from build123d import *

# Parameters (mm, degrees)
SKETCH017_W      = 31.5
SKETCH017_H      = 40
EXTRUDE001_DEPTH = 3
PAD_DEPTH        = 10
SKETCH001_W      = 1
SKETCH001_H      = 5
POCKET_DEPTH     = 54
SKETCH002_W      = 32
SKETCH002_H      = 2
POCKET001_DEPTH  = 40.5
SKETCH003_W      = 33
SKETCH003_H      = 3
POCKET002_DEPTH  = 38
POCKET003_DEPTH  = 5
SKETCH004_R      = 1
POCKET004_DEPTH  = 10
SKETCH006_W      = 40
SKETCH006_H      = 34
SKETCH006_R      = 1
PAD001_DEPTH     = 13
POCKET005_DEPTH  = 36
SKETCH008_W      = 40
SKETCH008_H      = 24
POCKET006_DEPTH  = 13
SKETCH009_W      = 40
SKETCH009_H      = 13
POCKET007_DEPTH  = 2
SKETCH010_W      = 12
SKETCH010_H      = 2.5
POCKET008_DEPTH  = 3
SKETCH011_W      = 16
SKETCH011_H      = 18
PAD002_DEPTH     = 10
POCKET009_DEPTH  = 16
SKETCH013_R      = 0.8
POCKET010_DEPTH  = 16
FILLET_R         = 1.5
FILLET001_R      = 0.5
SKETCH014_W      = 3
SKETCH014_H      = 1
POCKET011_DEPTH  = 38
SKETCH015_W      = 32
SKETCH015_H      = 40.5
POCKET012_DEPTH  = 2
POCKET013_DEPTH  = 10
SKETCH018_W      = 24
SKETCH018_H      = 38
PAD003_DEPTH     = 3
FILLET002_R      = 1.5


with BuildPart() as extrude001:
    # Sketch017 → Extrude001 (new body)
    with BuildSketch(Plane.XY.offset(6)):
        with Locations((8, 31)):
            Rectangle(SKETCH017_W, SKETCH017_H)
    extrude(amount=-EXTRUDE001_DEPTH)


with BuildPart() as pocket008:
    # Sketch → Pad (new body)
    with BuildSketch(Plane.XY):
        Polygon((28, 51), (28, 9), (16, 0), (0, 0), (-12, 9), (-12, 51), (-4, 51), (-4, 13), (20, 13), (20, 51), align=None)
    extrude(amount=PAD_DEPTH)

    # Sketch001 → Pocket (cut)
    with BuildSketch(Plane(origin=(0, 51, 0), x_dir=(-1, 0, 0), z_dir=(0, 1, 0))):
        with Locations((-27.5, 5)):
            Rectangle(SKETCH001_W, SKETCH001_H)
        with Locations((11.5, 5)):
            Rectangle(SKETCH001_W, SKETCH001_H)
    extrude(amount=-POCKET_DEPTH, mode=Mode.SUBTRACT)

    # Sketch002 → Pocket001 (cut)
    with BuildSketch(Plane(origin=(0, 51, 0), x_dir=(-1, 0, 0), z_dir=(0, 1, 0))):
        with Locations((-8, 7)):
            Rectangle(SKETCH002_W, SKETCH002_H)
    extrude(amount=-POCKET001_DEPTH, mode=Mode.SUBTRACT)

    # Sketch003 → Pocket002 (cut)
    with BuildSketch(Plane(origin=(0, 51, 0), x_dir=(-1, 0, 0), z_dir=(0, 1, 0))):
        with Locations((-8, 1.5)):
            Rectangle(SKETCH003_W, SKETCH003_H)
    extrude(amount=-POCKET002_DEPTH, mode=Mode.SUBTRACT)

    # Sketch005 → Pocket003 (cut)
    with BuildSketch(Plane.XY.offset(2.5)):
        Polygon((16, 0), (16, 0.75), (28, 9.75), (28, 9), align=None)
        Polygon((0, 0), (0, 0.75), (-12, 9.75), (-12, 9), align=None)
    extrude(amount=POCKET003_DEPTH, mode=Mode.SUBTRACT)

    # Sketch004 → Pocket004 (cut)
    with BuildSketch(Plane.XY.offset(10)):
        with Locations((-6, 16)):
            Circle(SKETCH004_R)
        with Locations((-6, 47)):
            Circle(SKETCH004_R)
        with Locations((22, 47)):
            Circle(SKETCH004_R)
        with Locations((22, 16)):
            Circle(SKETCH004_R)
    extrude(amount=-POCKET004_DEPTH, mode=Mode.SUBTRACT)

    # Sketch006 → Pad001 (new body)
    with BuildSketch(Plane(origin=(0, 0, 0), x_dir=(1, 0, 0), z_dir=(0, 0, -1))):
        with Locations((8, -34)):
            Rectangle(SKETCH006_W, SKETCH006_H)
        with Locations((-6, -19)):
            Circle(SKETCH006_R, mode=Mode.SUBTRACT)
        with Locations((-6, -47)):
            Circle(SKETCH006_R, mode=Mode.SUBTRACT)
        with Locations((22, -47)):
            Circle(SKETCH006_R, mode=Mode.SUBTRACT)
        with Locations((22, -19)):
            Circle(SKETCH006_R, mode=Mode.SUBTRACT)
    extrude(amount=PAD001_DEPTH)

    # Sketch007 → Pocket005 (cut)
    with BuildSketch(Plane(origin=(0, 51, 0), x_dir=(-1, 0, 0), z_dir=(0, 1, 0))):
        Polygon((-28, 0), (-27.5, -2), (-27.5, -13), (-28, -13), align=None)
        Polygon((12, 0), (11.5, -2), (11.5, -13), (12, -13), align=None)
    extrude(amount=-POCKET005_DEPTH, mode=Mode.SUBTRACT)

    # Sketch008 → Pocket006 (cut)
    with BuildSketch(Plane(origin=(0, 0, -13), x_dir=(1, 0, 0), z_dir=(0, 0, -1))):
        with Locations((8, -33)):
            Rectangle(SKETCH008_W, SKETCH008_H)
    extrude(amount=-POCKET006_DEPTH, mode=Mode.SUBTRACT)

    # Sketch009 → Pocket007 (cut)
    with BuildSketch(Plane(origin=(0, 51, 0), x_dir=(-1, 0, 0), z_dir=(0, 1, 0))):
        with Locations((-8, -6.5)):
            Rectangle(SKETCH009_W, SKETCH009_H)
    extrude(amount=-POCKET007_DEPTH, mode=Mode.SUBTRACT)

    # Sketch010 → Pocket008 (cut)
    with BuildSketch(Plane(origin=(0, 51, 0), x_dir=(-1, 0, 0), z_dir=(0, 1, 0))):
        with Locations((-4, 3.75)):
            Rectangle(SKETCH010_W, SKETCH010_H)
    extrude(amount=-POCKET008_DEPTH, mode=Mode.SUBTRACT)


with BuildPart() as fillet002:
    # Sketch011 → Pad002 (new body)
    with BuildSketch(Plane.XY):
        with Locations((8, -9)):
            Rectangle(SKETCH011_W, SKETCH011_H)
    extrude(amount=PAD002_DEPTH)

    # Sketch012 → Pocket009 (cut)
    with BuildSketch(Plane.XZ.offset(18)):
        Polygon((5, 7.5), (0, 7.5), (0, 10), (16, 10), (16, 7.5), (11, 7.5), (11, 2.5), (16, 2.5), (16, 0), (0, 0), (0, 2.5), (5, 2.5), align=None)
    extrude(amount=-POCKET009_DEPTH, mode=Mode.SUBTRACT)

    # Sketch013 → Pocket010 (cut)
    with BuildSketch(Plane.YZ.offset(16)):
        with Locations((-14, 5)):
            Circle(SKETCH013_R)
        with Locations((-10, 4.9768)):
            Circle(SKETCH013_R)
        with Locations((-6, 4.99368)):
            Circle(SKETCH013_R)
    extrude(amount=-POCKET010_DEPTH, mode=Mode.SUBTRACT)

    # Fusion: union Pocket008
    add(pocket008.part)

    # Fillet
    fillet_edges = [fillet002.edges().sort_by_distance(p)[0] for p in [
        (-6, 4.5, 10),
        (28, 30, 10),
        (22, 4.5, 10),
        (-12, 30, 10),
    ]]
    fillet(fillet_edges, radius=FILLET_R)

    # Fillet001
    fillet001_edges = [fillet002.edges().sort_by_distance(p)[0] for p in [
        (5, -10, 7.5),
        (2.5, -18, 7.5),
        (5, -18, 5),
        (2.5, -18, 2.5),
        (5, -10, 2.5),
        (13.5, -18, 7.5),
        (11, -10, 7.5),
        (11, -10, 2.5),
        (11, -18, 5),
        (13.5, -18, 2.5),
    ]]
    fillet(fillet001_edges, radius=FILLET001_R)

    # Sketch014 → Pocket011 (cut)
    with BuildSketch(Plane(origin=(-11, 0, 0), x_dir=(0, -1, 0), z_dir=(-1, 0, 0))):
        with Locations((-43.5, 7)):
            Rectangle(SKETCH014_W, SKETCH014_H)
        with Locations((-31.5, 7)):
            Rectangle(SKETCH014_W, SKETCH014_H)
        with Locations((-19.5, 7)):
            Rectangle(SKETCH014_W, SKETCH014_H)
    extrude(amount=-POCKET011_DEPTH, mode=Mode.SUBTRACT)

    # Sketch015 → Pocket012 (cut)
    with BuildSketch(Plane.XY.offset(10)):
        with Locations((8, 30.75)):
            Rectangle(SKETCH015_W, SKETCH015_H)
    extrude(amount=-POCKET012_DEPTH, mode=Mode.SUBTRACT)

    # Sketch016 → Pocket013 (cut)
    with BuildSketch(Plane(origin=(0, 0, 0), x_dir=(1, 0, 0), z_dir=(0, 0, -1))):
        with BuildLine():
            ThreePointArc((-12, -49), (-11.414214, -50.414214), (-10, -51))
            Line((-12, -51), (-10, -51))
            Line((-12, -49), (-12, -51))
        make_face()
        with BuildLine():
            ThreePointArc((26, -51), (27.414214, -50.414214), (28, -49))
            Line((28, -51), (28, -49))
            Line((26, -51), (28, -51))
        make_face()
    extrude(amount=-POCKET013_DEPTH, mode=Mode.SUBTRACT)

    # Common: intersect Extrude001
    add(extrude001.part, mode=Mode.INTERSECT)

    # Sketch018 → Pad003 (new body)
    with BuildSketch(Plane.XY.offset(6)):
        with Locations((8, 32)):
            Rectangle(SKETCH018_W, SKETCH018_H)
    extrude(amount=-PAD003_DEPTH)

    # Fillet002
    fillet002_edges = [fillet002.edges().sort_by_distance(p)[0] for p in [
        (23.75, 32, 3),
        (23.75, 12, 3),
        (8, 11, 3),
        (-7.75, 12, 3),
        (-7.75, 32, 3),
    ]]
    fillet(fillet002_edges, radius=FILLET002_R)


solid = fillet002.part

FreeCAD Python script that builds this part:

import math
import FreeCAD as App
import Part
import Sketcher
from FreeCAD import Vector


def edges_at(feature, points):
    """Names of the edges that pass closest to the given points."""
    edges = feature.Shape.Edges
    near = lambda p: min(range(len(edges)), key=lambda i: edges[i].distToShape(Part.Vertex(*p))[0])
    return sorted({f"Edge{near(p) + 1}" for p in points})


def add_polygon(sketch, points):
    """Adds a closed chain of lines whose ends are joined by coincident constraints."""
    first, n = sketch.GeometryCount, len(points)
    for a, b in zip(points, points[1:] + points[:1]):
        sketch.addGeometry(Part.LineSegment(App.Vector(*a, 0), App.Vector(*b, 0)), False)
    for i in range(n):
        sketch.addConstraint(Sketcher.Constraint("Coincident", first + i, 2, first + (i + 1) % n, 1))

doc = App.newDocument("Part")
body = doc.addObject("PartDesign::Body", "Body")

# Sketch on XY plane
sketch1 = body.newObject("Sketcher::SketchObject", "Sketch")
sketch1.AttachmentSupport = (doc.getObject("XY_Plane"), [""])
sketch1.MapMode = "FlatFace"
sketch1.AttachmentOffset = App.Placement(Vector(0, 0, 6), App.Rotation())
add_polygon(sketch1, [(-7.75, 51), (-7.75, 11), (23.75, 11), (23.75, 51)])  # lines 0-3
sketch1.addConstraint([
    Sketcher.Constraint("Vertical", 0),
    Sketcher.Constraint("Horizontal", 1),
    Sketcher.Constraint("Vertical", 2),
    Sketcher.Constraint("Horizontal", 3),
    Sketcher.Constraint("DistanceY", 0, 2, 0, 1, 40.0),
    Sketcher.Constraint("DistanceX", 1, 1, 1, 2, 31.5),
    Sketcher.Constraint("DistanceY", -1, 1, 0, 2, 11.0),
    Sketcher.Constraint("DistanceX", 0, 2, -1, 1, 7.75),
])
pad1 = body.newObject("PartDesign::Pad", "Pad")
pad1.Profile = sketch1
pad1.Length = 3
pad1.Reversed = True
body2 = doc.addObject("PartDesign::Body", "Body001")

# Sketch on XY plane
sketch2 = body2.newObject("Sketcher::SketchObject", "Sketch001")
sketch2.AttachmentSupport = (doc.getObject("XY_Plane001"), [""])
sketch2.MapMode = "FlatFace"
add_polygon(sketch2, [(28, 9), (28, 51), (20, 51), (20, 13), (-4, 13), (-4, 51), (-12, 51), (-12, 9), (0, 0), (16, 0)])  # lines 0-9
sketch2.addConstraint([
    Sketcher.Constraint("Vertical", 0),
    Sketcher.Constraint("Horizontal", 1),
    Sketcher.Constraint("Vertical", 2),
    Sketcher.Constraint("Horizontal", 3),
    Sketcher.Constraint("Vertical", 4),
    Sketcher.Constraint("Horizontal", 5),
    Sketcher.Constraint("Vertical", 6),
    Sketcher.Constraint("Horizontal", 8),
    Sketcher.Constraint("Coincident", 7, 2, -1, 1),
    Sketcher.Constraint("Horizontal", 1, 2, 4, 2),
    Sketcher.Constraint("Horizontal", 6, 2, 9, 2),
    Sketcher.Constraint("Equal", 1, 5),
    Sketcher.Constraint("Equal", 7, 9),
    Sketcher.Constraint("DistanceX", 1, 2, 1, 1, 8.0),
    Sketcher.Constraint("DistanceX", 3, 2, 3, 1, 24.0),
    Sketcher.Constraint("DistanceX", 8, 1, 8, 2, 16.0),
    Sketcher.Constraint("DistanceY", 0, 1, 0, 2, 42.0),
    Sketcher.Constraint("DistanceY", 2, 2, 2, 1, 38.0),
    Sketcher.Constraint("Distance", 7, 15.0),
])
pad2 = body2.newObject("PartDesign::Pad", "Pad001")
pad2.Profile = sketch2
pad2.Length = 10

# Sketch on XZ plane
sketch3 = body2.newObject("Sketcher::SketchObject", "Sketch002")
sketch3.AttachmentSupport = (doc.getObject("XZ_Plane001"), [""])
sketch3.MapMode = "FlatFace"
sketch3.AttachmentOffset = App.Placement(Vector(0, 0, -51), App.Rotation())
add_polygon(sketch3, [(28, 7.5), (28, 2.5), (27, 2.5), (27, 7.5)])  # lines 0-3
add_polygon(sketch3, [(-11, 7.5), (-11, 2.5), (-12, 2.5), (-12, 7.5)])  # lines 4-7
sketch3.addConstraint([
    Sketcher.Constraint("Vertical", 0),
    Sketcher.Constraint("Horizontal", 1),
    Sketcher.Constraint("Vertical", 2),
    Sketcher.Constraint("Horizontal", 3),
    Sketcher.Constraint("Vertical", 4),
    Sketcher.Constraint("Horizontal", 5),
    Sketcher.Constraint("Vertical", 6),
    Sketcher.Constraint("Horizontal", 7),
    Sketcher.Constraint("Horizontal", 1, 2, 4, 2),
    Sketcher.Constraint("Horizontal", 3, 2, 6, 2),
    Sketcher.Constraint("Equal", 3, 5),
    Sketcher.Constraint("DistanceX", 1, 2, 1, 1, 1.0),
    Sketcher.Constraint("DistanceY", 0, 2, 0, 1, 5.0),
    Sketcher.Constraint("DistanceX", -1, 1, 0, 2, 28.0),
    Sketcher.Constraint("DistanceX", 4, 2, -1, 1, 11.0),
    Sketcher.Constraint("DistanceY", -1, 1, 0, 2, 2.5),
])
pocket1 = body2.newObject("PartDesign::Pocket", "Pocket")
pocket1.Profile = sketch3
pocket1.Length = 54
pocket1.Reversed = True

# Sketch on XZ plane
sketch4 = body2.newObject("Sketcher::SketchObject", "Sketch003")
sketch4.AttachmentSupport = (doc.getObject("XZ_Plane001"), [""])
sketch4.MapMode = "FlatFace"
sketch4.AttachmentOffset = App.Placement(Vector(0, 0, -51), App.Rotation())
add_polygon(sketch4, [(24, 8), (24, 6), (-8, 6), (-8, 8)])  # lines 0-3
sketch4.addConstraint([
    Sketcher.Constraint("Vertical", 0),
    Sketcher.Constraint("Horizontal", 1),
    Sketcher.Constraint("Vertical", 2),
    Sketcher.Constraint("Horizontal", 3),
    Sketcher.Constraint("DistanceX", 1, 2, 1, 1, 32.0),
    Sketcher.Constraint("DistanceY", 0, 2, 0, 1, 2.0),
    Sketcher.Constraint("DistanceX", -1, 1, 0, 2, 24.0),
    Sketcher.Constraint("DistanceY", -1, 1, 0, 2, 6.0),
])
pocket2 = body2.newObject("PartDesign::Pocket", "Pocket001")
pocket2.Profile = sketch4
pocket2.Length = 40.5
pocket2.Reversed = True

# Sketch on XZ plane
sketch5 = body2.newObject("Sketcher::SketchObject", "Sketch004")
sketch5.AttachmentSupport = (doc.getObject("XZ_Plane001"), [""])
sketch5.MapMode = "FlatFace"
sketch5.AttachmentOffset = App.Placement(Vector(0, 0, -51), App.Rotation())
add_polygon(sketch5, [(24.5, 3), (24.5, 0), (-8.5, 0), (-8.5, 3)])  # lines 0-3
sketch5.addConstraint([
    Sketcher.Constraint("Vertical", 0),
    Sketcher.Constraint("Horizontal", 1),
    Sketcher.Constraint("Vertical", 2),
    Sketcher.Constraint("Horizontal", 3),
    Sketcher.Constraint("PointOnObject", 0, 2, -1),
    Sketcher.Constraint("DistanceX", 1, 2, 1, 1, 33.0),
    Sketcher.Constraint("DistanceY", 0, 2, 0, 1, 3.0),
    Sketcher.Constraint("DistanceX", -1, 1, 0, 2, 24.5),
])
pocket3 = body2.newObject("PartDesign::Pocket", "Pocket002")
pocket3.Profile = sketch5
pocket3.Length = 38
pocket3.Reversed = True

# Sketch on XY plane
sketch6 = body2.newObject("Sketcher::SketchObject", "Sketch005")
sketch6.AttachmentSupport = (doc.getObject("XY_Plane001"), [""])
sketch6.MapMode = "FlatFace"
sketch6.AttachmentOffset = App.Placement(Vector(0, 0, 2.5), App.Rotation())
add_polygon(sketch6, [(16, 0.75), (16, 0), (28, 9), (28, 9.75)])  # lines 0-3
add_polygon(sketch6, [(0, 0), (0, 0.75), (-12, 9.75), (-12, 9)])  # lines 4-7
sketch6.addConstraint([
    Sketcher.Constraint("Vertical", 0),
    Sketcher.Constraint("Vertical", 2),
    Sketcher.Constraint("Vertical", 4),
    Sketcher.Constraint("Vertical", 6),
    Sketcher.Constraint("Coincident", 7, 2, -1, 1),
    Sketcher.Constraint("PointOnObject", 0, 2, -1),
    Sketcher.Constraint("Parallel", 1, 3),
    Sketcher.Constraint("Parallel", 5, 7),
    Sketcher.Constraint("Horizontal", 3, 2, 4, 2),
    Sketcher.Constraint("Horizontal", 2, 2, 5, 2),
    Sketcher.Constraint("Equal", 3, 5),
    Sketcher.Constraint("Distance", 1, 15.0),
    Sketcher.Constraint("DistanceX", -1, 1, 0, 2, 16.0),
    Sketcher.Constraint("DistanceX", -1, 1, 1, 2, 28.0),
    Sketcher.Constraint("DistanceY", 0, 2, 0, 1, 0.75),
])
pocket4 = body2.newObject("PartDesign::Pocket", "Pocket003")
pocket4.Profile = sketch6
pocket4.Length = 5
pocket4.Reversed = True

# Sketch on XY plane
sketch7 = body2.newObject("Sketcher::SketchObject", "Sketch006")
sketch7.AttachmentSupport = (doc.getObject("XY_Plane001"), [""])
sketch7.MapMode = "FlatFace"
sketch7.AttachmentOffset = App.Placement(Vector(0, 0, 10), App.Rotation())
sketch7.addGeometry([
    Part.Circle(Vector(-6, 16, 0), Vector(0, 0, 1), 1),
    Part.Circle(Vector(-6, 47, 0), Vector(0, 0, 1), 1),
    Part.Circle(Vector(22, 47, 0), Vector(0, 0, 1), 1),
    Part.Circle(Vector(22, 16, 0), Vector(0, 0, 1), 1),
], False)
sketch7.addConstraint([
    Sketcher.Constraint("Equal", 0, 1),
    Sketcher.Constraint("Equal", 1, 2),
    Sketcher.Constraint("Equal", 2, 3),
    Sketcher.Constraint("Horizontal", 1, 3, 2, 3),
    Sketcher.Constraint("Horizontal", 0, 3, 3, 3),
    Sketcher.Constraint("Vertical", 0, 3, 1, 3),
    Sketcher.Constraint("Vertical", 2, 3, 3, 3),
    Sketcher.Constraint("Diameter", 0, 2.0),
    Sketcher.Constraint("DistanceX", 0, 3, -1, 1, 6.0),
    Sketcher.Constraint("DistanceY", -1, 1, 0, 3, 16.0),
    Sketcher.Constraint("DistanceY", -1, 1, 1, 3, 47.0),
    Sketcher.Constraint("DistanceX", -1, 1, 2, 3, 22.0),
])
pocket5 = body2.newObject("PartDesign::Pocket", "Pocket004")
pocket5.Profile = sketch7
pocket5.Length = 10

# Sketch on XY plane
sketch8 = body2.newObject("Sketcher::SketchObject", "Sketch007")
sketch8.AttachmentSupport = (doc.getObject("XY_Plane001"), [""])
sketch8.MapMode = "FlatFace"
add_polygon(sketch8, [(-12, 17), (-12, 51), (28, 51), (28, 17)])  # lines 0-3
sketch8.addGeometry(Part.Circle(Vector(-6, 47, 0), Vector(0, 0, 1), 1), False)  # 4
sketch8.addGeometry(Part.Circle(Vector(22, 47, 0), Vector(0, 0, 1), 1), False)  # 5
sketch8.addGeometry(Part.Circle(Vector(-6, 19, 0), Vector(0, 0, 1), 1), False)  # 6
sketch8.addGeometry(Part.Circle(Vector(22, 19, 0), Vector(0, 0, 1), 1), False)  # 7
sketch8.addConstraint([
    Sketcher.Constraint("Vertical", 0),
    Sketcher.Constraint("Horizontal", 1),
    Sketcher.Constraint("Vertical", 2),
    Sketcher.Constraint("Horizontal", 3),
    Sketcher.Constraint("Equal", 4, 5),
    Sketcher.Constraint("Equal", 5, 6),
    Sketcher.Constraint("Equal", 6, 7),
    Sketcher.Constraint("Horizontal", 4, 3, 5, 3),
    Sketcher.Constraint("Horizontal", 6, 3, 7, 3),
    Sketcher.Constraint("Vertical", 4, 3, 6, 3),
    Sketcher.Constraint("Vertical", 5, 3, 7, 3),
    Sketcher.Constraint("Diameter", 4, 2.0),
    Sketcher.Constraint("DistanceX", 1, 1, 1, 2, 40.0),
    Sketcher.Constraint("DistanceY", 0, 1, 0, 2, 34.0),
    Sketcher.Constraint("DistanceX", 4, 3, -1, 1, 6.0),
    Sketcher.Constraint("DistanceY", -1, 1, 4, 3, 47.0),
    Sketcher.Constraint("DistanceX", -1, 1, 5, 3, 22.0),
    Sketcher.Constraint("DistanceY", -1, 1, 6, 3, 19.0),
    Sketcher.Constraint("DistanceX", 0, 2, -1, 1, 12.0),
    Sketcher.Constraint("DistanceY", -1, 1, 0, 2, 51.0),
])
pad3 = body2.newObject("PartDesign::Pad", "Pad002")
pad3.Profile = sketch8
pad3.Length = 13
pad3.Reversed = True

# Sketch on XZ plane
sketch9 = body2.newObject("Sketcher::SketchObject", "Sketch008")
sketch9.AttachmentSupport = (doc.getObject("XZ_Plane001"), [""])
sketch9.MapMode = "FlatFace"
sketch9.AttachmentOffset = App.Placement(Vector(0, 0, -51), App.Rotation())
add_polygon(sketch9, [(27.5, -2), (28, 0), (28, -13), (27.5, -13)])  # lines 0-3
add_polygon(sketch9, [(-12, 0), (-11.5, -2), (-11.5, -13), (-12, -13)])  # lines 4-7
sketch9.addConstraint([
    Sketcher.Constraint("Vertical", 1),
    Sketcher.Constraint("Horizontal", 2),
    Sketcher.Constraint("Vertical", 3),
    Sketcher.Constraint("Vertical", 5),
    Sketcher.Constraint("Horizontal", 6),
    Sketcher.Constraint("Vertical", 7),
    Sketcher.Constraint("PointOnObject", 0, 2, -1),
    Sketcher.Constraint("PointOnObject", 7, 2, -1),
    Sketcher.Constraint("Horizontal", 3, 2, 4, 2),
    Sketcher.Constraint("Horizontal", 2, 2, 5, 2),
    Sketcher.Constraint("Equal", 2, 6),
    Sketcher.Constraint("DistanceY", 1, 2, 1, 1, 13.0),
    Sketcher.Constraint("DistanceY", 3, 1, 3, 2, 11.0),
    Sketcher.Constraint("DistanceX", 2, 2, 2, 1, 0.5),
    Sketcher.Constraint("DistanceX", -1, 1, 0, 2, 28.0),
    Sketcher.Constraint("DistanceX", 6, 2, -1, 1, 12.0),
])
pocket6 = body2.newObject("PartDesign::Pocket", "Pocket005")
pocket6.Profile = sketch9
pocket6.Length = 36
pocket6.Reversed = True

# Sketch on XY plane
sketch10 = body2.newObject("Sketcher::SketchObject", "Sketch009")
sketch10.AttachmentSupport = (doc.getObject("XY_Plane001"), [""])
sketch10.MapMode = "FlatFace"
sketch10.AttachmentOffset = App.Placement(Vector(0, 0, -13), App.Rotation())
add_polygon(sketch10, [(-12, 21), (-12, 45), (28, 45), (28, 21)])  # lines 0-3
sketch10.addConstraint([
    Sketcher.Constraint("Vertical", 0),
    Sketcher.Constraint("Horizontal", 1),
    Sketcher.Constraint("Vertical", 2),
    Sketcher.Constraint("Horizontal", 3),
    Sketcher.Constraint("DistanceX", 1, 1, 1, 2, 40.0),
    Sketcher.Constraint("DistanceY", 0, 1, 0, 2, 24.0),
    Sketcher.Constraint("DistanceX", 0, 2, -1, 1, 12.0),
    Sketcher.Constraint("DistanceY", -1, 1, 0, 2, 45.0),
])
pocket7 = body2.newObject("PartDesign::Pocket", "Pocket006")
pocket7.Profile = sketch10
pocket7.Length = 13
pocket7.Reversed = True

# Sketch on XZ plane
sketch11 = body2.newObject("Sketcher::SketchObject", "Sketch010")
sketch11.AttachmentSupport = (doc.getObject("XZ_Plane001"), [""])
sketch11.MapMode = "FlatFace"
sketch11.AttachmentOffset = App.Placement(Vector(0, 0, -51), App.Rotation())
add_polygon(sketch11, [(28, 0), (28, -13), (-12, -13), (-12, 0)])  # lines 0-3
sketch11.addConstraint([
    Sketcher.Constraint("Vertical", 0),
    Sketcher.Constraint("Horizontal", 1),
    Sketcher.Constraint("Vertical", 2),
    Sketcher.Constraint("Horizontal", 3),
    Sketcher.Constraint("PointOnObject", 2, 2, -1),
    Sketcher.Constraint("DistanceX", 1, 2, 1, 1, 40.0),
    Sketcher.Constraint("DistanceY", 0, 2, 0, 1, 13.0),
    Sketcher.Constraint("DistanceX", -1, 1, 0, 2, 28.0),
])
pocket8 = body2.newObject("PartDesign::Pocket", "Pocket007")
pocket8.Profile = sketch11
pocket8.Length = 2
pocket8.Reversed = True

# Sketch on XZ plane
sketch12 = body2.newObject("Sketcher::SketchObject", "Sketch011")
sketch12.AttachmentSupport = (doc.getObject("XZ_Plane001"), [""])
sketch12.MapMode = "FlatFace"
sketch12.AttachmentOffset = App.Placement(Vector(0, 0, -51), App.Rotation())
add_polygon(sketch12, [(10, 5), (10, 2.5), (-2, 2.5), (-2, 5)])  # lines 0-3
sketch12.addConstraint([
    Sketcher.Constraint("Vertical", 0),
    Sketcher.Constraint("Horizontal", 1),
    Sketcher.Constraint("Vertical", 2),
    Sketcher.Constraint("Horizontal", 3),
    Sketcher.Constraint("DistanceX", 1, 2, 1, 1, 12.0),
    Sketcher.Constraint("DistanceY", 0, 2, 0, 1, 2.5),
    Sketcher.Constraint("DistanceX", -1, 1, 0, 2, 10.0),
    Sketcher.Constraint("DistanceY", -1, 1, 2, 2, 5.0),
])
pocket9 = body2.newObject("PartDesign::Pocket", "Pocket008")
pocket9.Profile = sketch12
pocket9.Length = 3
pocket9.Reversed = True
body3 = doc.addObject("PartDesign::Body", "Body002")

# Sketch on XY plane
sketch13 = body3.newObject("Sketcher::SketchObject", "Sketch012")
sketch13.AttachmentSupport = (doc.getObject("XY_Plane002"), [""])
sketch13.MapMode = "FlatFace"
add_polygon(sketch13, [(0, 0), (0, -18), (16, -18), (16, 0)])  # lines 0-3
sketch13.addConstraint([
    Sketcher.Constraint("Vertical", 0),
    Sketcher.Constraint("Horizontal", 1),
    Sketcher.Constraint("Vertical", 2),
    Sketcher.Constraint("Horizontal", 3),
    Sketcher.Constraint("Coincident", 3, 2, -1, 1),
    Sketcher.Constraint("DistanceX", 1, 1, 1, 2, 16.0),
    Sketcher.Constraint("DistanceY", 0, 2, 0, 1, 18.0),
])
pad4 = body3.newObject("PartDesign::Pad", "Pad003")
pad4.Profile = sketch13
pad4.Length = 10

# Sketch on XZ plane
sketch14 = body3.newObject("Sketcher::SketchObject", "Sketch013")
sketch14.AttachmentSupport = (doc.getObject("XZ_Plane002"), [""])
sketch14.MapMode = "FlatFace"
sketch14.AttachmentOffset = App.Placement(Vector(0, 0, 18), App.Rotation())
add_polygon(sketch14, [(0, 7.5), (5, 7.5), (5, 2.5), (0, 2.5), (0, 0), (16, 0), (16, 2.5), (11, 2.5), (11, 7.5), (16, 7.5), (16, 10), (0, 10)])  # lines 0-11
sketch14.addConstraint([
    Sketcher.Constraint("Horizontal", 0),
    Sketcher.Constraint("Vertical", 1),
    Sketcher.Constraint("Horizontal", 2),
    Sketcher.Constraint("Vertical", 3),
    Sketcher.Constraint("Horizontal", 4),
    Sketcher.Constraint("Vertical", 5),
    Sketcher.Constraint("Horizontal", 6),
    Sketcher.Constraint("Vertical", 7),
    Sketcher.Constraint("Horizontal", 8),
    Sketcher.Constraint("Vertical", 9),
    Sketcher.Constraint("Horizontal", 10),
    Sketcher.Constraint("Vertical", 11),
    Sketcher.Constraint("Coincident", 3, 2, -1, 1),
    Sketcher.Constraint("PointOnObject", 10, 2, -2),
    Sketcher.Constraint("Horizontal", 2, 2, 5, 2),
    Sketcher.Constraint("Horizontal", 0, 2, 7, 2),
    Sketcher.Constraint("Vertical", 5, 2, 8, 2),
    Sketcher.Constraint("Equal", 2, 6),
    Sketcher.Constraint("Equal", 8, 1),
    Sketcher.Constraint("Equal", 5, 9),
    Sketcher.Constraint("DistanceX", 0, 1, 0, 2, 5.0),
    Sketcher.Constraint("DistanceX", 4, 1, 4, 2, 16.0),
    Sketcher.Constraint("DistanceY", 3, 2, 3, 1, 2.5),
])
pocket10 = body3.newObject("PartDesign::Pocket", "Pocket009")
pocket10.Profile = sketch14
pocket10.Length = 16

# Sketch on YZ plane
sketch15 = body3.newObject("Sketcher::SketchObject", "Sketch014")
sketch15.AttachmentSupport = (doc.getObject("YZ_Plane002"), [""])
sketch15.MapMode = "FlatFace"
sketch15.AttachmentOffset = App.Placement(Vector(0, 0, 16), App.Rotation())
sketch15.addGeometry([
    Part.Circle(Vector(-14, 5, 0), Vector(0, 0, 1), 0.8),
    Part.Circle(Vector(-10, 4.9768, 0), Vector(0, 0, 1), 0.8),
    Part.Circle(Vector(-6, 4.99368, 0), Vector(0, 0, 1), 0.8),
], False)
sketch15.addConstraint([
    Sketcher.Constraint("Equal", 0, 1),
    Sketcher.Constraint("Equal", 1, 2),
    Sketcher.Constraint("Diameter", 0, 1.6),
    Sketcher.Constraint("DistanceX", 0, 3, -1, 1, 14.0),
    Sketcher.Constraint("DistanceY", -1, 1, 0, 3, 5.0),
    Sketcher.Constraint("DistanceX", 1, 3, -1, 1, 10.0),
    Sketcher.Constraint("DistanceX", 2, 3, -1, 1, 6.0),
    Sketcher.Constraint("DistanceY", -1, 1, 1, 3, 4.9768),
    Sketcher.Constraint("DistanceY", -1, 1, 2, 3, 4.99368),
])
pocket11 = body3.newObject("PartDesign::Pocket", "Pocket010")
pocket11.Profile = sketch15
pocket11.Length = 16
doc.recompute()

boolean = body3.newObject("PartDesign::Boolean", "Boolean")
boolean.Type = "Fuse"
boolean.addObjects([body2])
doc.recompute()

fillet = body3.newObject("PartDesign::Fillet", "Fillet")
fillet.Base = (boolean, edges_at(boolean, [
    (-6, 4.5, 10),
    (28, 30, 10),
    (22, 4.5, 10),
    (-12, 30, 10),
]))
fillet.Radius = 1.5
doc.recompute()

fillet2 = body3.newObject("PartDesign::Fillet", "Fillet001")
fillet2.Base = (fillet, edges_at(fillet, [
    (5, -10, 7.5),
    (2.5, -18, 7.5),
    (5, -18, 5),
    (2.5, -18, 2.5),
    (5, -10, 2.5),
    (13.5, -18, 7.5),
    (11, -10, 7.5),
    (11, -10, 2.5),
    (11, -18, 5),
    (13.5, -18, 2.5),
]))
fillet2.Radius = 0.5

# Sketch on YZ plane
sketch16 = body3.newObject("Sketcher::SketchObject", "Sketch015")
sketch16.AttachmentSupport = (doc.getObject("YZ_Plane002"), [""])
sketch16.MapMode = "FlatFace"
sketch16.AttachmentOffset = App.Placement(Vector(0, 0, -11), App.Rotation())
add_polygon(sketch16, [(45, 7.5), (45, 6.5), (42, 6.5), (42, 7.5)])  # lines 0-3
add_polygon(sketch16, [(33, 7.5), (33, 6.5), (30, 6.5), (30, 7.5)])  # lines 4-7
add_polygon(sketch16, [(21, 7.5), (21, 6.5), (18, 6.5), (18, 7.5)])  # lines 8-11
sketch16.addConstraint([
    Sketcher.Constraint("Vertical", 0),
    Sketcher.Constraint("Horizontal", 1),
    Sketcher.Constraint("Vertical", 2),
    Sketcher.Constraint("Horizontal", 3),
    Sketcher.Constraint("Vertical", 4),
    Sketcher.Constraint("Horizontal", 5),
    Sketcher.Constraint("Vertical", 6),
    Sketcher.Constraint("Horizontal", 7),
    Sketcher.Constraint("Vertical", 8),
    Sketcher.Constraint("Horizontal", 9),
    Sketcher.Constraint("Vertical", 10),
    Sketcher.Constraint("Horizontal", 11),
    Sketcher.Constraint("Horizontal", 1, 2, 4, 2),
    Sketcher.Constraint("Horizontal", 3, 2, 6, 2),
    Sketcher.Constraint("Horizontal", 5, 2, 8, 2),
    Sketcher.Constraint("Horizontal", 7, 2, 10, 2),
    Sketcher.Constraint("Equal", 3, 5),
    Sketcher.Constraint("Equal", 7, 9),
    Sketcher.Constraint("DistanceX", 1, 2, 1, 1, 3.0),
    Sketcher.Constraint("DistanceY", 0, 2, 0, 1, 1.0),
    Sketcher.Constraint("DistanceX", -1, 1, 0, 2, 45.0),
    Sketcher.Constraint("DistanceX", -1, 1, 4, 2, 33.0),
    Sketcher.Constraint("DistanceX", -1, 1, 8, 2, 21.0),
    Sketcher.Constraint("DistanceY", -1, 1, 0, 2, 6.5),
])
pocket12 = body3.newObject("PartDesign::Pocket", "Pocket011")
pocket12.Profile = sketch16
pocket12.Length = 38
pocket12.Reversed = True

# Sketch on XY plane
sketch17 = body3.newObject("Sketcher::SketchObject", "Sketch016")
sketch17.AttachmentSupport = (doc.getObject("XY_Plane002"), [""])
sketch17.MapMode = "FlatFace"
sketch17.AttachmentOffset = App.Placement(Vector(0, 0, 10), App.Rotation())
add_polygon(sketch17, [(-8, 51), (-8, 10.5), (24, 10.5), (24, 51)])  # lines 0-3
sketch17.addConstraint([
    Sketcher.Constraint("Vertical", 0),
    Sketcher.Constraint("Horizontal", 1),
    Sketcher.Constraint("Vertical", 2),
    Sketcher.Constraint("Horizontal", 3),
    Sketcher.Constraint("DistanceX", 1, 1, 1, 2, 32.0),
    Sketcher.Constraint("DistanceY", 0, 2, 0, 1, 40.5),
    Sketcher.Constraint("DistanceX", 0, 2, -1, 1, 8.0),
    Sketcher.Constraint("DistanceY", -1, 1, 2, 2, 51.0),
])
pocket13 = body3.newObject("PartDesign::Pocket", "Pocket012")
pocket13.Profile = sketch17
pocket13.Length = 2

# Sketch on XY plane
sketch18 = body3.newObject("Sketcher::SketchObject", "Sketch017")
sketch18.AttachmentSupport = (doc.getObject("XY_Plane002"), [""])
sketch18.MapMode = "FlatFace"
sketch18.addGeometry([
    Part.ArcOfCircle(Part.Circle(Vector(-10.000001, 49.000001, 0), Vector(0, 0, 1), 1.999999), math.radians(89.999957), math.radians(180.000043)),  # 0
    Part.LineSegment(Vector(-12, 49, 0), Vector(-12, 51, 0)),  # 1
    Part.LineSegment(Vector(-12, 51, 0), Vector(-10, 51, 0)),  # 2
    Part.ArcOfCircle(Part.Circle(Vector(26.000001, 49.000001, 0), Vector(0, 0, 1), 1.999999), math.radians(-0.000043), math.radians(90.000043)),  # 3
    Part.LineSegment(Vector(26, 51, 0), Vector(28, 51, 0)),  # 4
    Part.LineSegment(Vector(28, 51, 0), Vector(28, 49, 0)),  # 5
], False)
sketch18.addConstraint([
    Sketcher.Constraint("Tangent", 0, 2, 1, 1),
    Sketcher.Constraint("Coincident", 1, 2, 2, 1),
    Sketcher.Constraint("Tangent", 2, 2, 0, 1),
    Sketcher.Constraint("Tangent", 3, 2, 4, 1),
    Sketcher.Constraint("Coincident", 4, 2, 5, 1),
    Sketcher.Constraint("Tangent", 5, 2, 3, 1),
    Sketcher.Constraint("Vertical", 1),
    Sketcher.Constraint("Horizontal", 2),
    Sketcher.Constraint("Horizontal", 4),
    Sketcher.Constraint("Vertical", 5),
    Sketcher.Constraint("Equal", 0, 3),
    Sketcher.Constraint("Horizontal", 0, 3, 3, 3),
    Sketcher.Constraint("Radius", 0, 1.999999),
    Sketcher.Constraint("DistanceX", 0, 3, -1, 1, 10.000001),
    Sketcher.Constraint("DistanceY", -1, 1, 0, 3, 49.000001),
    Sketcher.Constraint("DistanceX", -1, 1, 3, 3, 26.000001),
])
pocket14 = body3.newObject("PartDesign::Pocket", "Pocket013")
pocket14.Profile = sketch18
pocket14.Length = 10
pocket14.Reversed = True
doc.recompute()

boolean2 = body3.newObject("PartDesign::Boolean", "Boolean001")
boolean2.Type = "Common"
boolean2.addObjects([body])

# Sketch on XY plane
sketch19 = body3.newObject("Sketcher::SketchObject", "Sketch018")
sketch19.AttachmentSupport = (doc.getObject("XY_Plane002"), [""])
sketch19.MapMode = "FlatFace"
sketch19.AttachmentOffset = App.Placement(Vector(0, 0, 6), App.Rotation())
add_polygon(sketch19, [(-4, 51), (-4, 13), (20, 13), (20, 51)])  # lines 0-3
sketch19.addConstraint([
    Sketcher.Constraint("Vertical", 0),
    Sketcher.Constraint("Horizontal", 1),
    Sketcher.Constraint("Vertical", 2),
    Sketcher.Constraint("Horizontal", 3),
    Sketcher.Constraint("DistanceX", 1, 1, 1, 2, 24.0),
    Sketcher.Constraint("DistanceY", 0, 2, 0, 1, 38.0),
    Sketcher.Constraint("DistanceX", 0, 2, -1, 1, 4.0),
    Sketcher.Constraint("DistanceY", -1, 1, 0, 2, 13.0),
])
pad5 = body3.newObject("PartDesign::Pad", "Pad004")
pad5.Profile = sketch19
pad5.Length = 3
pad5.Reversed = True
doc.recompute()

fillet3 = body3.newObject("PartDesign::Fillet", "Fillet002")
fillet3.Base = (pad5, edges_at(pad5, [
    (23.75, 31, 3),
    (23.75, 31, 3),
    (8, 11, 3),
    (-7.75, 31, 3),
    (-7.75, 31, 3),
]))
fillet3.Radius = 1.5

doc.recompute()
